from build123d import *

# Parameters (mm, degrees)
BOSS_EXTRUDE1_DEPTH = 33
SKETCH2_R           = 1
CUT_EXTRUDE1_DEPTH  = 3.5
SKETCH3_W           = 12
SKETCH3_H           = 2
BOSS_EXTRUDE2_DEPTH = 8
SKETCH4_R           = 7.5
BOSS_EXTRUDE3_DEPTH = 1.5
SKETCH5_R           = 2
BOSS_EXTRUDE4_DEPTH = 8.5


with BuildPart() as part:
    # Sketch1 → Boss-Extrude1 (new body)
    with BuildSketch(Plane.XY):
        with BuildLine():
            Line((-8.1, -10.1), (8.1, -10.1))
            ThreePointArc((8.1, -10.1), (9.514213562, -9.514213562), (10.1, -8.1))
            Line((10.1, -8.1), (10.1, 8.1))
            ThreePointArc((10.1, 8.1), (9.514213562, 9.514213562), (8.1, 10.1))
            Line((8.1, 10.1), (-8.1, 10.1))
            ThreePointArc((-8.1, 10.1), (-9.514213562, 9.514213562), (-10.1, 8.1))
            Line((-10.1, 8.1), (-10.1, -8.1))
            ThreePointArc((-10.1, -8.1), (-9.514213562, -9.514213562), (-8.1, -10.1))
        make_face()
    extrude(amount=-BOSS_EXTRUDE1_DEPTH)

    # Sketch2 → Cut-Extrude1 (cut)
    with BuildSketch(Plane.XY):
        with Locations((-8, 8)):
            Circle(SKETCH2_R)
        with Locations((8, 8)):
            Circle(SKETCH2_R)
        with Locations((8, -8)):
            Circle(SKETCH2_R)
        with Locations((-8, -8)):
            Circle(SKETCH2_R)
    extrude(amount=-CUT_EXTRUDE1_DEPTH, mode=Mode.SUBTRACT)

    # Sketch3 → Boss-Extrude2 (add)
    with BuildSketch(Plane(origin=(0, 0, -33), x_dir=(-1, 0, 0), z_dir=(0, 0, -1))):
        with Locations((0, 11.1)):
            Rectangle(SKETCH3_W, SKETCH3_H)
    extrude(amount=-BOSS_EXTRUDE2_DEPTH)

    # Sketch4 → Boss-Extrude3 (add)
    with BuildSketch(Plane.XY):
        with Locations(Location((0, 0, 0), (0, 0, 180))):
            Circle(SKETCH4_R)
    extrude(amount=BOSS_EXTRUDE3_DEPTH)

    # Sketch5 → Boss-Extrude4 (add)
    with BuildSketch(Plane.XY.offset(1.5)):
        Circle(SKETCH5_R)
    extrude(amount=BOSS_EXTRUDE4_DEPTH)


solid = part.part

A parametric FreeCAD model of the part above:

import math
import FreeCAD as App
import Part
import Sketcher
from FreeCAD import Vector
Q = App.Units.Quantity


def add_polygon(sketch, points):
    """Adds a closed chain of lines whose ends are joined by coincident constraints."""
    first, n = sketch.GeometryCount, len(points)
    for a, b in zip(points, points[1:] + points[:1]):
        sketch.addGeometry(Part.LineSegment(App.Vector(*a, 0), App.Vector(*b, 0)), False)
    for i in range(n):
        sketch.addConstraint(Sketcher.Constraint("Coincident", first + i, 2, first + (i + 1) % n, 1))

doc = App.newDocument("Part")
body = doc.addObject("PartDesign::Body", "Body")

# Sketch on XY plane
sketch1 = body.newObject("Sketcher::SketchObject", "Sketch")
sketch1.AttachmentSupport = (doc.getObject("XY_Plane"), [""])
sketch1.MapMode = "FlatFace"
sketch1.addGeometry(Part.LineSegment(Vector(-8.1, -10.1, 0), Vector(8.1, -10.1, 0)), False)
sketch1.addGeometry(Part.ArcOfCircle(Part.Circle(Vector(8.1, -8.1, 0), Vector(0, 0, 1), 2), math.radians(-90), math.radians(0)), False)
sketch1.addGeometry(Part.LineSegment(Vector(10.1, -8.1, 0), Vector(10.1, 8.1, 0)), False)
sketch1.addGeometry(Part.ArcOfCircle(Part.Circle(Vector(8.1, 8.1, 0), Vector(0, 0, 1), 2), math.radians(0), math.radians(90)), False)
sketch1.addGeometry(Part.LineSegment(Vector(8.1, 10.1, 0), Vector(-8.1, 10.1, 0)), False)
sketch1.addGeometry(Part.ArcOfCircle(Part.Circle(Vector(-8.1, 8.1, 0), Vector(0, 0, 1), 2), math.radians(90), math.radians(180)), False)
sketch1.addGeometry(Part.LineSegment(Vector(-10.1, 8.1, 0), Vector(-10.1, -8.1, 0)), False)
sketch1.addGeometry(Part.ArcOfCircle(Part.Circle(Vector(-8.1, -8.1, 0), Vector(0, 0, 1), 2), math.radians(-180), math.radians(-90)), False)
sketch1.addConstraint(Sketcher.Constraint("Tangent", 0, 2, 1, 1))
sketch1.addConstraint(Sketcher.Constraint("Tangent", 1, 2, 2, 1))
sketch1.addConstraint(Sketcher.Constraint("Tangent", 2, 2, 3, 1))
sketch1.addConstraint(Sketcher.Constraint("Tangent", 3, 2, 4, 1))
sketch1.addConstraint(Sketcher.Constraint("Tangent", 4, 2, 5, 1))
sketch1.addConstraint(Sketcher.Constraint("Tangent", 5, 2, 6, 1))
sketch1.addConstraint(Sketcher.Constraint("Tangent", 6, 2, 7, 1))
sketch1.addConstraint(Sketcher.Constraint("Tangent", 7, 2, 0, 1))
sketch1.addConstraint(Sketcher.Constraint("Horizontal", 0))
sketch1.addConstraint(Sketcher.Constraint("Vertical", 2))
sketch1.addConstraint(Sketcher.Constraint("Horizontal", 4))
sketch1.addConstraint(Sketcher.Constraint("Vertical", 6))
sketch1.addConstraint(Sketcher.Constraint("Equal", 1, 3))
sketch1.addConstraint(Sketcher.Constraint("Equal", 3, 5))
sketch1.addConstraint(Sketcher.Constraint("Equal", 5, 7))
sketch1.addConstraint(Sketcher.Constraint("Symmetric", 1, 3, 5, 3, -1, 1))
sketch1.addConstraint(Sketcher.Constraint("Equal", 4, 2))
sketch1.addConstraint(Sketcher.Constraint("Radius", 1, Q("2 mm")))
sketch1.addConstraint(Sketcher.Constraint("DistanceX", 0, 1, 0, 2, Q("16.2 mm")))
pad1 = body.newObject("PartDesign::Pad", "Pad")
pad1.Profile = sketch1
pad1.Length = 33
pad1.Reversed = True

# Sketch on XY plane
sketch2 = body.newObject("Sketcher::SketchObject", "Sketch001")
sketch2.AttachmentSupport = (doc.getObject("XY_Plane"), [""])
sketch2.MapMode = "FlatFace"
sketch2.addGeometry(Part.Circle(Vector(-8, 8, 0), Vector(0, 0, 1), 1), False)
sketch2.addGeometry(Part.Circle(Vector(8, 8, 0), Vector(0, 0, 1), 1), False)
sketch2.addGeometry(Part.Circle(Vector(8, -8, 0), Vector(0, 0, 1), 1), False)
sketch2.addGeometry(Part.Circle(Vector(-8, -8, 0), Vector(0, 0, 1), 1), False)
sketch2.addConstraint(Sketcher.Constraint("Equal", 0, 1))
sketch2.addConstraint(Sketcher.Constraint("Equal", 1, 2))
sketch2.addConstraint(Sketcher.Constraint("Equal", 2, 3))
sketch2.addConstraint(Sketcher.Constraint("Symmetric", 0, 3, 2, 3, -1, 1))
sketch2.addConstraint(Sketcher.Constraint("Symmetric", 1, 3, 3, 3, -1, 1))
sketch2.addConstraint(Sketcher.Constraint("Symmetric", 0, 3, 1, 3, -2))
sketch2.addConstraint(Sketcher.Constraint("Diameter", 0, Q("2 mm")))
sketch2.addConstraint(Sketcher.Constraint("DistanceX", 0, 3, -1, 1, Q("8 mm")))
sketch2.addConstraint(Sketcher.Constraint("DistanceY", -1, 1, 0, 3, Q("8 mm")))
pocket1 = body.newObject("PartDesign::Pocket", "Pocket")
pocket1.Profile = sketch2
pocket1.Length = 3.5

# Sketch on XY plane
sketch3 = body.newObject("Sketcher::SketchObject", "Sketch002")
sketch3.AttachmentSupport = (doc.getObject("XY_Plane"), [""])
sketch3.MapMode = "FlatFace"
sketch3.AttachmentOffset = App.Placement(Vector(0, 0, -33), App.Rotation())
add_polygon(sketch3, [(6, 12.1), (6, 10.1), (-6, 10.1), (-6, 12.1)])  # lines 0-3
sketch3.addConstraint(Sketcher.Constraint("Vertical", 0))
sketch3.addConstraint(Sketcher.Constraint("Horizontal", 1))
sketch3.addConstraint(Sketcher.Constraint("Vertical", 2))
sketch3.addConstraint(Sketcher.Constraint("Horizontal", 3))
sketch3.addConstraint(Sketcher.Constraint("DistanceX", 1, 2, 1, 1, Q("12 mm")))
sketch3.addConstraint(Sketcher.Constraint("DistanceY", 0, 2, 0, 1, Q("2 mm")))
sketch3.addConstraint(Sketcher.Constraint("DistanceX", -1, 1, 0, 2, Q("6 mm")))
sketch3.addConstraint(Sketcher.Constraint("DistanceY", -1, 1, 0, 2, Q("10.1 mm")))
pad2 = body.newObject("PartDesign::Pad", "Pad001")
pad2.Profile = sketch3
pad2.Length = 8

# Sketch on XY plane
sketch4 = body.newObject("Sketcher::SketchObject", "Sketch003")
sketch4.AttachmentSupport = (doc.getObject("XY_Plane"), [""])
sketch4.MapMode = "FlatFace"
sketch4.addGeometry(Part.Circle(Vector(0, 0, 0), Vector(0, 0, 1), 8), False)
sketch4.addConstraint(Sketcher.Constraint("Coincident", 0, 3, -1, 1))
sketch4.addConstraint(Sketcher.Constraint("Diameter", 0, Q("15 mm")))
pad3 = body.newObject("PartDesign::Pad", "Pad002")
pad3.Profile = sketch4
pad3.Length = 1.5

# Sketch on XY plane
sketch5 = body.newObject("Sketcher::SketchObject", "Sketch004")
sketch5.AttachmentSupport = (doc.getObject("XY_Plane"), [""])
sketch5.MapMode = "FlatFace"
sketch5.AttachmentOffset = App.Placement(Vector(0, 0, 1.5), App.Rotation())
sketch5.addGeometry(Part.Circle(Vector(0, 0, 0), Vector(0, 0, 1), 2), False)
sketch5.addConstraint(Sketcher.Constraint("Coincident", 0, 3, -1, 1))
sketch5.addConstraint(Sketcher.Constraint("Diameter", 0, Q("4 mm")))
pad4 = body.newObject("PartDesign::Pad", "Pad003")
pad4.Profile = sketch5
pad4.Length = 8.5

doc.recompute()
